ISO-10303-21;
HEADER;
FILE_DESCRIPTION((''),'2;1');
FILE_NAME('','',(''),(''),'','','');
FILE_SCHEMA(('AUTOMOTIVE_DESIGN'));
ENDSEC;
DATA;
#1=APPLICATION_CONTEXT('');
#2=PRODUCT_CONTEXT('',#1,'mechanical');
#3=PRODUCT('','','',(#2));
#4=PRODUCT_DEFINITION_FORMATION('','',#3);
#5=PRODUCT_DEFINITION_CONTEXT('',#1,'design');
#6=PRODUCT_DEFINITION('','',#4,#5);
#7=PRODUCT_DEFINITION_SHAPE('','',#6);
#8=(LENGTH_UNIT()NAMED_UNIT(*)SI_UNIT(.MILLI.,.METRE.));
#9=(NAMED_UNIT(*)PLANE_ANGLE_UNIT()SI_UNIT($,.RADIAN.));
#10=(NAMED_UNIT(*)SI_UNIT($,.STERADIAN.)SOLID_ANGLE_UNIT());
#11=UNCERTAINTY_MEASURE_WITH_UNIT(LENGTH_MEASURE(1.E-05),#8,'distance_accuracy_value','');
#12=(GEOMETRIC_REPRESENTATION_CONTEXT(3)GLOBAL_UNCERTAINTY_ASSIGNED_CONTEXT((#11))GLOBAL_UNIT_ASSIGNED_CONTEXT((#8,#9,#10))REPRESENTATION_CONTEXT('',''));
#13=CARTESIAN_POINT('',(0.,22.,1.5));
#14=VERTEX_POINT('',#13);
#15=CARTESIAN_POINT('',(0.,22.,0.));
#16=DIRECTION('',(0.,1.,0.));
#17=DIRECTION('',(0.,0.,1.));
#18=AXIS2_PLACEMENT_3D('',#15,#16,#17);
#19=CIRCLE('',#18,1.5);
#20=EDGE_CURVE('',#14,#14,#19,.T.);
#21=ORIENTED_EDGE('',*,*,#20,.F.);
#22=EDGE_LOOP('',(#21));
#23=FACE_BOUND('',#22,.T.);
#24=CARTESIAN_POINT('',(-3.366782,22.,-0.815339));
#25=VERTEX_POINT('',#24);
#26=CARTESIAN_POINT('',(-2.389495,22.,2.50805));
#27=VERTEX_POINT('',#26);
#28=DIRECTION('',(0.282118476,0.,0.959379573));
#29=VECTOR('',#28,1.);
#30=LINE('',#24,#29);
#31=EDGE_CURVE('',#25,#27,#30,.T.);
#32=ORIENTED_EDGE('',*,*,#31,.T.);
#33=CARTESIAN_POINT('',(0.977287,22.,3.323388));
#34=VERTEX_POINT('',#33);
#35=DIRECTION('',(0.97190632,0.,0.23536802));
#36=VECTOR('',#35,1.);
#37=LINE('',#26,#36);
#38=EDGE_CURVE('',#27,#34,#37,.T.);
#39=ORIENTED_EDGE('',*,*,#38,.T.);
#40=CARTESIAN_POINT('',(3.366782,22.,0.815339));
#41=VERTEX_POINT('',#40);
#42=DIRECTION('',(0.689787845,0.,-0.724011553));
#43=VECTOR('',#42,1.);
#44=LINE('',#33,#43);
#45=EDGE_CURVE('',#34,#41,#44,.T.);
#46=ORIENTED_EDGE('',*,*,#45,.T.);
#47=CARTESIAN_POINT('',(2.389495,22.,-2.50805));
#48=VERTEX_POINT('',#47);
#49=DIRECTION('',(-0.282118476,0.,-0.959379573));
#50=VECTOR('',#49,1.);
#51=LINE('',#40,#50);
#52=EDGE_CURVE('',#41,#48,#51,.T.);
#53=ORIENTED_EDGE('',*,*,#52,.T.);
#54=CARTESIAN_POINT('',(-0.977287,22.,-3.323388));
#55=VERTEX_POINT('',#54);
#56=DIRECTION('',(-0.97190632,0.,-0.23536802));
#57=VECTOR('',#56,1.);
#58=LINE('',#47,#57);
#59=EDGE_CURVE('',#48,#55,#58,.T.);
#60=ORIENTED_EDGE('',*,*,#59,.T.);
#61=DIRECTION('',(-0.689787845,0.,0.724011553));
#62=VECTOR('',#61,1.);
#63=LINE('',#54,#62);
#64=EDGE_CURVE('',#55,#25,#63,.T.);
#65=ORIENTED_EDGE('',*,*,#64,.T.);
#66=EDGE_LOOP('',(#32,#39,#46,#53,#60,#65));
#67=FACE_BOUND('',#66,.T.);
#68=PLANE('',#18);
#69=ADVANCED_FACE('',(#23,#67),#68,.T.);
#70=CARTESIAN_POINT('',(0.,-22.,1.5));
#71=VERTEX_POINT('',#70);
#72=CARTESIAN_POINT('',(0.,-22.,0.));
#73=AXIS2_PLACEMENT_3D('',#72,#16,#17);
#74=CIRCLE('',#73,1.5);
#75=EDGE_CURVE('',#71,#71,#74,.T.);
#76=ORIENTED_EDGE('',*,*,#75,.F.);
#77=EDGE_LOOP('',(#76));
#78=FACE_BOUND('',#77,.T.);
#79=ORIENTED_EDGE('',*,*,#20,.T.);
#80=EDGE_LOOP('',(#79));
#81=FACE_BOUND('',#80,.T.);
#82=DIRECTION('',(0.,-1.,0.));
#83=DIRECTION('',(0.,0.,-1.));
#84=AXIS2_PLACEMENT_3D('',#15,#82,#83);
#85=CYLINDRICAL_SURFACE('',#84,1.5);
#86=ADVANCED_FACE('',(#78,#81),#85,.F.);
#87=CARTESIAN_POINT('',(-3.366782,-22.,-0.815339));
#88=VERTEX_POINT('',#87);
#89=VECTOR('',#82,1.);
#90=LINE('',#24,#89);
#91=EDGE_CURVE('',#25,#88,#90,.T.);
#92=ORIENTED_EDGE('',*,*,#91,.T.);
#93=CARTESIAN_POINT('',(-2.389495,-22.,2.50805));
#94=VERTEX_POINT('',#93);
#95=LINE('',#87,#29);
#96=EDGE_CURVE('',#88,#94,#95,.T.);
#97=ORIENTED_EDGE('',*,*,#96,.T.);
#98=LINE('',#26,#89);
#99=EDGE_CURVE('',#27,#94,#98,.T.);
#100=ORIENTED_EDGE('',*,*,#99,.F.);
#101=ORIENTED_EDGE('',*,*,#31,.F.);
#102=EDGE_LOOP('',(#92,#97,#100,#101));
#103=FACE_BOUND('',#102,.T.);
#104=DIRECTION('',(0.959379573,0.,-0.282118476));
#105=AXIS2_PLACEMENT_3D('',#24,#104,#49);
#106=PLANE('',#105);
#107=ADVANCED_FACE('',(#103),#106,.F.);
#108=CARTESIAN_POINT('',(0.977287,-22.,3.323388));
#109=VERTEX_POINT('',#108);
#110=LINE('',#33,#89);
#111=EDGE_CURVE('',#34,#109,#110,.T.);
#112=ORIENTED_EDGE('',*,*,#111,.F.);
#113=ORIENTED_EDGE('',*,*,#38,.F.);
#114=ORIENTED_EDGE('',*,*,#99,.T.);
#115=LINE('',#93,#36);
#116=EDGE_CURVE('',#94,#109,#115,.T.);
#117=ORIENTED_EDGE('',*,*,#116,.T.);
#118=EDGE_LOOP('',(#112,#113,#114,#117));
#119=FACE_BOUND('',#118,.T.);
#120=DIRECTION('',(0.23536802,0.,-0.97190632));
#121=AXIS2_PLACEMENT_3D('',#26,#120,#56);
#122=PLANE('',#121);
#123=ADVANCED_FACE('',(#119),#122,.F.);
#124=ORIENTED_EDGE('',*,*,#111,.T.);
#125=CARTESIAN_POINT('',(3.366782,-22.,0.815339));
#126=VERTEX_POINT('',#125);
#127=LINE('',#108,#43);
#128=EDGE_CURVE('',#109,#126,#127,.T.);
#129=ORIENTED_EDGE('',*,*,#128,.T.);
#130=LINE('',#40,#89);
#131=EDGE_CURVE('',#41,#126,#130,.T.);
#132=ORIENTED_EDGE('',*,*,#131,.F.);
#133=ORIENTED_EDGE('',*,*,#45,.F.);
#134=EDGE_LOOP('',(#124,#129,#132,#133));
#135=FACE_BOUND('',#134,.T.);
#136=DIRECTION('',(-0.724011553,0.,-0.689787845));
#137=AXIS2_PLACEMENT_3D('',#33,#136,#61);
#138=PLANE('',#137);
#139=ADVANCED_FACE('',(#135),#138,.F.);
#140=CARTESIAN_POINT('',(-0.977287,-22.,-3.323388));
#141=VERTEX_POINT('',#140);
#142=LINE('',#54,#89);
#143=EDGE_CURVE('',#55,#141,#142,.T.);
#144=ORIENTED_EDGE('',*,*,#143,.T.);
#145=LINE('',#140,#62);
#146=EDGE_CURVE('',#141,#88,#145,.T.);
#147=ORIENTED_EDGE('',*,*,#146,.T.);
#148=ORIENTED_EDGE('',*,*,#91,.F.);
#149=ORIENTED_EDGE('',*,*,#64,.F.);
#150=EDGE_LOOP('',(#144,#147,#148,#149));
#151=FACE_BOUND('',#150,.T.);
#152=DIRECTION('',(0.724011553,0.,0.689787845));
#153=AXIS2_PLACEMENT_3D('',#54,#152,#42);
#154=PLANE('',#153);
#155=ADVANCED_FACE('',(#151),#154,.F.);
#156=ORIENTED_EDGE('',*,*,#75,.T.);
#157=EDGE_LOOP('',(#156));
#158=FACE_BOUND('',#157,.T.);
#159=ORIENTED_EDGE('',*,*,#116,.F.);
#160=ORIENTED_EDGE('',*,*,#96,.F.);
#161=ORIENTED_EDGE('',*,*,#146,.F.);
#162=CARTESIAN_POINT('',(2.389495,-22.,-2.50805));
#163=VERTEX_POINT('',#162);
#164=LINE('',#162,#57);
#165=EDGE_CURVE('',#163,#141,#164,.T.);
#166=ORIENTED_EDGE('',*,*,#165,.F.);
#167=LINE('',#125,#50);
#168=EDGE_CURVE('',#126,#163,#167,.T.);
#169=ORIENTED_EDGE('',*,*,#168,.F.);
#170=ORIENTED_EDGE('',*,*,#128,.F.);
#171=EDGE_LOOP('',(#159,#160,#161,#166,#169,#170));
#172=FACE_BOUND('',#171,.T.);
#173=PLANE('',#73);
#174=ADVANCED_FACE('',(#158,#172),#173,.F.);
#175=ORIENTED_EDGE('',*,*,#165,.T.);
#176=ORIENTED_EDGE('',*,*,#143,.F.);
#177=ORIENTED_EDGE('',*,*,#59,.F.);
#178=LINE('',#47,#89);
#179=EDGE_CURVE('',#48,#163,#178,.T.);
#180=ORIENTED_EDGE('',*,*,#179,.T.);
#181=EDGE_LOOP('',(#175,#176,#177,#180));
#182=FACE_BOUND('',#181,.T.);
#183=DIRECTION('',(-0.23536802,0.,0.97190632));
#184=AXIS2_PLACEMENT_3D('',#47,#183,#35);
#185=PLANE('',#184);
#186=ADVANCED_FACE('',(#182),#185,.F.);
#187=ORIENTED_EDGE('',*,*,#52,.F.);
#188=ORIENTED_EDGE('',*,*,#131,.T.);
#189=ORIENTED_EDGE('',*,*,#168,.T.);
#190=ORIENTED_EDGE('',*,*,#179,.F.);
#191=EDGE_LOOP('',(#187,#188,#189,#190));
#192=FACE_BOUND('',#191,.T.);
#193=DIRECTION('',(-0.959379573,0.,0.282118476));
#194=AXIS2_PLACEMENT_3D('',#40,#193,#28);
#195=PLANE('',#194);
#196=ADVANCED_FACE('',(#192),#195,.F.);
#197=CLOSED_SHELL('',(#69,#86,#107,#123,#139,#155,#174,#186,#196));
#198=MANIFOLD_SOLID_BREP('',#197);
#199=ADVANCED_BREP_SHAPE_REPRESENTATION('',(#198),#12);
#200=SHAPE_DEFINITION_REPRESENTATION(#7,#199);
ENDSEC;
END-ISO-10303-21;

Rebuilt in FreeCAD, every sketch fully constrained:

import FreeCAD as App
import Part
import Sketcher
from FreeCAD import Vector
Q = App.Units.Quantity


def add_polygon(sketch, points):
    """Adds a closed chain of lines whose ends are joined by coincident constraints."""
    first, n = sketch.GeometryCount, len(points)
    for a, b in zip(points, points[1:] + points[:1]):
        sketch.addGeometry(Part.LineSegment(App.Vector(*a, 0), App.Vector(*b, 0)), False)
    for i in range(n):
        sketch.addConstraint(Sketcher.Constraint("Coincident", first + i, 2, first + (i + 1) % n, 1))

doc = App.newDocument("Part")
body = doc.addObject("PartDesign::Body", "Body")

sketch1 = body.newObject("Sketcher::SketchObject", "Sketch")
sketch1.AttachmentSupport = (doc.getObject("XZ_Plane"), [""])
sketch1.MapMode = "FlatFace"
add_polygon(sketch1, [(1, 3.3), (3.4, 0.8), (2.4, -2.5), (-1, -3.3), (-3.4, -0.8), (-2.4, 2.5)])
sketch1.addGeometry(Part.Circle(Vector(0, 0, 0), Vector(0, 0, 1), 1.5), False)
sketch1.addConstraint([
    Sketcher.Constraint("Coincident", 6, 3, -1, 1),
    Sketcher.Constraint("Symmetric", 0, 2, 3, 2, -1, 1),
    Sketcher.Constraint("Symmetric", 1, 2, 4, 2, -1, 1),
    Sketcher.Constraint("Symmetric", 2, 2, 5, 2, -1, 1),
    Sketcher.Constraint("Equal", 0, 1),
    Sketcher.Constraint("Equal", 1, 2),
    Sketcher.Constraint("Diameter", 6, Q("3 mm")),
    Sketcher.Constraint("Distance", 0, Q("3.464102 mm")),
    Sketcher.Constraint("DistanceY", 1, 2, 4, 2, Q("5.016099 mm")),
    Sketcher.Constraint("DistanceY", -1, 1, 0, 2, Q("0.815339 mm")),
    Sketcher.Constraint("DistanceY", 2, 2, -1, 1, Q("3.323388 mm")),
])
pad1 = body.newObject("PartDesign::Pad", "Pad")
pad1.Profile = sketch1
pad1.Length = 44
pad1.Midplane = True

doc.recompute()
